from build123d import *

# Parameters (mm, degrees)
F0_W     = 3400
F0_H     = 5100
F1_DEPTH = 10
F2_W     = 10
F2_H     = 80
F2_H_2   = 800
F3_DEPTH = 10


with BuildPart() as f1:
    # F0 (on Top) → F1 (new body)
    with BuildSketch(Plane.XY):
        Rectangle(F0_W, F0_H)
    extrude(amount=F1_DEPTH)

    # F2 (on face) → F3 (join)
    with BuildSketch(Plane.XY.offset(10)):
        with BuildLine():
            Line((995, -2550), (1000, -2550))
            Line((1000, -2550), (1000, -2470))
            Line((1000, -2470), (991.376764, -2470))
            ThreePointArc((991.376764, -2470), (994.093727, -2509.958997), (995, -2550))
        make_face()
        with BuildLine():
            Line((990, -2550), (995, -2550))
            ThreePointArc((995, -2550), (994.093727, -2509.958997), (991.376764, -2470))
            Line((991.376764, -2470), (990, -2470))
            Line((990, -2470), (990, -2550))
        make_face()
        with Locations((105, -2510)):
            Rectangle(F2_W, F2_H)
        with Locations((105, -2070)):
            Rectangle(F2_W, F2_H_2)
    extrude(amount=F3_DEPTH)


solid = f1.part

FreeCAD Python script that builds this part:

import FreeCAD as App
import Part
import Sketcher
from FreeCAD import Vector
Q = App.Units.Quantity

doc = App.newDocument("Part")
params = doc.addObject("Spreadsheet::Sheet", "Params")
for row, (alias, value) in enumerate([
    ("sketch1_width", "3400 mm"),
    ("sketch1_height", "5100 mm"),
    ("pad1_length", "10 mm"),
    ("sketch2_width", "10 mm"),
    ("sketch2_height", "80 mm"),
    ("sketch2_height2", "880 mm"),
    ("pad2_length", "10 mm"),
], start=1):
    params.set(f"A{row}", alias)
    params.set(f"B{row}", "=" + value)
    params.setAlias(f"B{row}", alias)

body = doc.addObject("PartDesign::Body", "Body")

sketch1 = body.newObject("Sketcher::SketchObject", "Sketch")
sketch1.AttachmentSupport = (doc.getObject("XY_Plane"), [""])
sketch1.MapMode = "FlatFace"
sketch1.addGeometry(Part.LineSegment(Vector(-1700, 2550, 0), Vector(-1700, -2550, 0)), False)
sketch1.addGeometry(Part.LineSegment(Vector(-1700, -2550, 0), Vector(1700, -2550, 0)), False)
sketch1.addGeometry(Part.LineSegment(Vector(1700, -2550, 0), Vector(1700, 2550, 0)), False)
sketch1.addGeometry(Part.LineSegment(Vector(1700, 2550, 0), Vector(-1700, 2550, 0)), False)
sketch1.addConstraint(Sketcher.Constraint("Coincident", 0, 2, 1, 1))
sketch1.addConstraint(Sketcher.Constraint("Coincident", 1, 2, 2, 1))
sketch1.addConstraint(Sketcher.Constraint("Coincident", 2, 2, 3, 1))
sketch1.addConstraint(Sketcher.Constraint("Coincident", 3, 2, 0, 1))
sketch1.addConstraint(Sketcher.Constraint("Vertical", 0))
sketch1.addConstraint(Sketcher.Constraint("Horizontal", 1))
sketch1.addConstraint(Sketcher.Constraint("Vertical", 2))
sketch1.addConstraint(Sketcher.Constraint("Horizontal", 3))
sketch1.addConstraint(Sketcher.Constraint("Symmetric", 0, 2, 2, 2, -1, 1))
sketch1.addConstraint(Sketcher.Constraint("DistanceX", 1, 1, 1, 2, Q("3400 mm")))
sketch1.addConstraint(Sketcher.Constraint("DistanceY", 0, 2, 0, 1, Q("5100 mm")))
sketch1.setExpression("Constraints[9]", "Params.sketch1_width")
sketch1.setExpression("Constraints[10]", "Params.sketch1_height")
pad1 = body.newObject("PartDesign::Pad", "Pad")
pad1.Profile = sketch1
pad1.setExpression("Length", "Params.pad1_length")

sketch2 = body.newObject("Sketcher::SketchObject", "Sketch001")
sketch2.AttachmentSupport = (doc.getObject("XY_Plane"), [""])
sketch2.MapMode = "FlatFace"
sketch2.AttachmentOffset = App.Placement(Vector(0, 0, 10), App.Rotation())
sketch2.addGeometry(Part.LineSegment(Vector(1000, -2550, 0), Vector(1000, -2470, 0)), False)
sketch2.addGeometry(Part.LineSegment(Vector(1000, -2470, 0), Vector(990, -2470, 0)), False)
sketch2.addGeometry(Part.LineSegment(Vector(990, -2470, 0), Vector(990, -2550, 0)), False)
sketch2.addGeometry(Part.LineSegment(Vector(990, -2550, 0), Vector(1000, -2550, 0)), False)
sketch2.addGeometry(Part.LineSegment(Vector(100, -2550, 0), Vector(110, -2550, 0)), False)
sketch2.addGeometry(Part.LineSegment(Vector(110, -2550, 0), Vector(110, -1670, 0)), False)
sketch2.addGeometry(Part.LineSegment(Vector(110, -1670, 0), Vector(100, -1670, 0)), False)
sketch2.addGeometry(Part.LineSegment(Vector(100, -1670, 0), Vector(100, -2550, 0)), False)
sketch2.addConstraint(Sketcher.Constraint("Coincident", 0, 2, 1, 1))
sketch2.addConstraint(Sketcher.Constraint("Coincident", 1, 2, 2, 1))
sketch2.addConstraint(Sketcher.Constraint("Coincident", 2, 2, 3, 1))
sketch2.addConstraint(Sketcher.Constraint("Coincident", 3, 2, 0, 1))
sketch2.addConstraint(Sketcher.Constraint("Coincident", 4, 2, 5, 1))
sketch2.addConstraint(Sketcher.Constraint("Coincident", 5, 2, 6, 1))
sketch2.addConstraint(Sketcher.Constraint("Coincident", 6, 2, 7, 1))
sketch2.addConstraint(Sketcher.Constraint("Coincident", 7, 2, 4, 1))
sketch2.addConstraint(Sketcher.Constraint("Vertical", 0))
sketch2.addConstraint(Sketcher.Constraint("Horizontal", 1))
sketch2.addConstraint(Sketcher.Constraint("Vertical", 2))
sketch2.addConstraint(Sketcher.Constraint("Horizontal", 3))
sketch2.addConstraint(Sketcher.Constraint("Horizontal", 4))
sketch2.addConstraint(Sketcher.Constraint("Vertical", 5))
sketch2.addConstraint(Sketcher.Constraint("Horizontal", 6))
sketch2.addConstraint(Sketcher.Constraint("Vertical", 7))
sketch2.addConstraint(Sketcher.Constraint("Horizontal", 3, 2, 4, 2))
sketch2.addConstraint(Sketcher.Constraint("Equal", 3, 4))
sketch2.addConstraint(Sketcher.Constraint("DistanceX", 1, 2, 1, 1, Q("10 mm")))
sketch2.addConstraint(Sketcher.Constraint("DistanceY", 0, 1, 0, 2, Q("80 mm")))
sketch2.addConstraint(Sketcher.Constraint("DistanceY", 5, 1, 5, 2, Q("880 mm")))
sketch2.addConstraint(Sketcher.Constraint("DistanceX", -1, 1, 0, 2, Q("1000 mm")))
sketch2.addConstraint(Sketcher.Constraint("DistanceY", 0, 2, -1, 1, Q("2470 mm")))
sketch2.addConstraint(Sketcher.Constraint("DistanceX", -1, 1, 4, 2, Q("110 mm")))
sketch2.setExpression("Constraints[18]", "Params.sketch2_width")
sketch2.setExpression("Constraints[19]", "Params.sketch2_height")
sketch2.setExpression("Constraints[20]", "Params.sketch2_height2")
pad2 = body.newObject("PartDesign::Pad", "Pad001")
pad2.Profile = sketch2
pad2.setExpression("Length", "Params.pad2_length")

doc.recompute()
